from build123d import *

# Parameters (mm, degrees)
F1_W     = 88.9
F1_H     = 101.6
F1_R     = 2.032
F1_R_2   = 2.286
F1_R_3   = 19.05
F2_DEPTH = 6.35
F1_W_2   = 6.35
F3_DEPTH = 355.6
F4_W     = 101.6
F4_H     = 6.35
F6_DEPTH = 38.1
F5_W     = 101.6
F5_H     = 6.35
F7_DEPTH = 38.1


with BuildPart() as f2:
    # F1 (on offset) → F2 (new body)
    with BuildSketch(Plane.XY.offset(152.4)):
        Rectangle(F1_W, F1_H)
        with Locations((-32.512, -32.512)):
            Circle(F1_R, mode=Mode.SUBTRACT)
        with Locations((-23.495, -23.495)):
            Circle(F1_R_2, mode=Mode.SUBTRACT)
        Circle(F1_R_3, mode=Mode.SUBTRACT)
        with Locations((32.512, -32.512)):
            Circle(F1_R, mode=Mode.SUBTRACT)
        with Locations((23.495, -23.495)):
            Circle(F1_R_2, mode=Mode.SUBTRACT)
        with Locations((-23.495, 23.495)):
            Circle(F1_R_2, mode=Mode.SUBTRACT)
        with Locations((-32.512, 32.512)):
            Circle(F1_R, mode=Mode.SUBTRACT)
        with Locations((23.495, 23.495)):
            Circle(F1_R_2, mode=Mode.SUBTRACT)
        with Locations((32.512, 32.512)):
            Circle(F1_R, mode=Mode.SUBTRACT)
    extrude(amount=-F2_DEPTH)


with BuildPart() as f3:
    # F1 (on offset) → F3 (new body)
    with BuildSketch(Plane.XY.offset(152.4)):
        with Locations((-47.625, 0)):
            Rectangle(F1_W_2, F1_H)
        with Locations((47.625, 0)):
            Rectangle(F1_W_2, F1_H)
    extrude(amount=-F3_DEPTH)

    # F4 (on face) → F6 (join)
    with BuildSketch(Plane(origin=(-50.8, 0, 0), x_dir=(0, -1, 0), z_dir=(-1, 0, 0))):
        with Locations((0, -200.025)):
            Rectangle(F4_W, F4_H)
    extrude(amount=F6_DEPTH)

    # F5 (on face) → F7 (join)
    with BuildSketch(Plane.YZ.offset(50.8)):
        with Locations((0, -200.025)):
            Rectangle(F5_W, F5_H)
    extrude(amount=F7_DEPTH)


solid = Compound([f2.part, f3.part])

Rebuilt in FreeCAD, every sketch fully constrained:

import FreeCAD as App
import Part
import Sketcher

V = App.Vector
Q = App.Units.Quantity

doc = App.newDocument("Part")
params = doc.addObject("Spreadsheet::Sheet", "Params")
for row, (alias, value) in enumerate([
    ("sketch1_diameter", "1.5 in"),
    ("sketch1_diameter2", "0.16 in"),
    ("sketch1_diameter3", "0.18 in"),
    ("sketch1_height", "4 in"),
    ("sketch1_width", "3.5 in"),
    ("pad1_length", "0.25 in"),
    ("sketch2_height", "4 in"),
    ("sketch2_width", "0.25 in"),
    ("pad2_length", "14 in"),
    ("sketch3_width", "4 in"),
    ("sketch3_height", "0.25 in"),
    ("pad3_length", "1.5 in"),
    ("sketch4_width", "4 in"),
    ("sketch4_height", "0.25 in"),
    ("pad4_length", "1.5 in"),
], start=1):
    params.set(f"A{row}", alias)
    params.set(f"B{row}", "=" + value)
    params.setAlias(f"B{row}", alias)

body = doc.addObject("PartDesign::Body", "Body")

sketch1 = body.newObject("Sketcher::SketchObject", "Sketch")
sketch1.AttachmentSupport = (doc.getObject("XY_Plane"), [""])
sketch1.MapMode = "FlatFace"
sketch1.AttachmentOffset = App.Placement(V(0, 0, 6 * 25.4), App.Rotation())
sketch1.addGeometry([
    Part.LineSegment(V(-44.5, 50.8, 0), V(-44.5, -50.8, 0)),
    Part.LineSegment(V(-44.5, -50.8, 0), V(44.5, -50.8, 0)),
    Part.LineSegment(V(44.5, -50.8, 0), V(44.5, 50.8, 0)),
    Part.LineSegment(V(44.5, 50.8, 0), V(-44.5, 50.8, 0)),
    Part.Circle(V(-32.5, -32.5, 0), V(0, 0, 1), 2),
    Part.Circle(V(-23.5, -23.5, 0), V(0, 0, 1), 2.3),
    Part.Circle(V(32.5, -32.5, 0), V(0, 0, 1), 2),
    Part.Circle(V(23.5, -23.5, 0), V(0, 0, 1), 2.3),
    Part.Circle(V(-23.5, 23.5, 0), V(0, 0, 1), 2.3),
    Part.Circle(V(-32.5, 32.5, 0), V(0, 0, 1), 2),
    Part.Circle(V(0, 0, 0), V(0, 0, 1), 19.1),
    Part.Circle(V(23.5, 23.5, 0), V(0, 0, 1), 2.3),
    Part.Circle(V(32.5, 32.5, 0), V(0, 0, 1), 2),
], False)
sketch1.addConstraint([
    Sketcher.Constraint("Coincident", 0, 2, 1, 1),
    Sketcher.Constraint("Coincident", 1, 2, 2, 1),
    Sketcher.Constraint("Coincident", 2, 2, 3, 1),
    Sketcher.Constraint("Coincident", 3, 2, 0, 1),
    Sketcher.Constraint("Vertical", 0),
    Sketcher.Constraint("Horizontal", 1),
    Sketcher.Constraint("Vertical", 2),
    Sketcher.Constraint("Horizontal", 3),
    Sketcher.Constraint("Coincident", 10, 3, -1, 1),
    Sketcher.Constraint("Equal", 4, 6),
    Sketcher.Constraint("Equal", 5, 7),
    Sketcher.Constraint("Equal", 7, 8),
    Sketcher.Constraint("Equal", 6, 9),
    Sketcher.Constraint("Equal", 8, 11),
    Sketcher.Constraint("Equal", 9, 12),
    Sketcher.Constraint("Symmetric", 7, 3, 8, 3, -1, 1),
    Sketcher.Constraint("Symmetric", 6, 3, 9, 3, -1, 1),
    Sketcher.Constraint("Symmetric", 5, 3, 11, 3, -1, 1),
    Sketcher.Constraint("Symmetric", 4, 3, 12, 3, -1, 1),
    Sketcher.Constraint("Symmetric", 0, 2, 2, 2, -1, 1),
    Sketcher.Constraint("Symmetric", 4, 3, 6, 3, -2),
    Sketcher.Constraint("Symmetric", 5, 3, 7, 3, -2),
    Sketcher.Constraint("Diameter", 10, Q("1.5 in")),
    Sketcher.Constraint("Diameter", 4, Q("0.16 in")),
    Sketcher.Constraint("Diameter", 5, Q("0.18 in")),
    Sketcher.Constraint("DistanceY", 0, 2, 0, 1, Q("4 in")),
    Sketcher.Constraint("DistanceX", 1, 1, 1, 2, Q("3.5 in")),
    Sketcher.Constraint("DistanceX", 4, 3, -1, 1, Q("1.28 in")),
    Sketcher.Constraint("DistanceY", 4, 3, -1, 1, Q("1.28 in")),
    Sketcher.Constraint("DistanceX", 5, 3, 7, 3, Q("1.85 in")),
    Sketcher.Constraint("DistanceY", 5, 3, 8, 3, Q("1.85 in")),
])
sketch1.setExpression("Constraints[22]", "Params.sketch1_diameter")
sketch1.setExpression("Constraints[23]", "Params.sketch1_diameter2")
sketch1.setExpression("Constraints[24]", "Params.sketch1_diameter3")
sketch1.setExpression("Constraints[25]", "Params.sketch1_height")
sketch1.setExpression("Constraints[26]", "Params.sketch1_width")
pad1 = body.newObject("PartDesign::Pad", "Pad")
pad1.Profile = sketch1
pad1.setExpression("Length", "Params.pad1_length")
pad1.Reversed = True
body2 = doc.addObject("PartDesign::Body", "Body001")
body2.AllowCompound = True

sketch2 = body2.newObject("Sketcher::SketchObject", "Sketch001")
sketch2.AttachmentSupport = (doc.getObject("XY_Plane001"), [""])
sketch2.MapMode = "FlatFace"
sketch2.AttachmentOffset = App.Placement(V(0, 0, 6 * 25.4), App.Rotation())
sketch2.addGeometry([
    Part.LineSegment(V(-51, 51, 0), V(-51, -51, 0)),
    Part.LineSegment(V(-51, -51, 0), V(-44, -51, 0)),
    Part.LineSegment(V(-44, -51, 0), V(-44, 51, 0)),
    Part.LineSegment(V(-44, 51, 0), V(-51, 51, 0)),
    Part.LineSegment(V(44, 51, 0), V(44, -51, 0)),
    Part.LineSegment(V(44, -51, 0), V(51, -51, 0)),
    Part.LineSegment(V(51, -51, 0), V(51, 51, 0)),
    Part.LineSegment(V(51, 51, 0), V(44, 51, 0)),
], False)
sketch2.addConstraint([
    Sketcher.Constraint("Coincident", 0, 2, 1, 1),
    Sketcher.Constraint("Coincident", 1, 2, 2, 1),
    Sketcher.Constraint("Coincident", 2, 2, 3, 1),
    Sketcher.Constraint("Coincident", 3, 2, 0, 1),
    Sketcher.Constraint("Coincident", 4, 2, 5, 1),
    Sketcher.Constraint("Coincident", 5, 2, 6, 1),
    Sketcher.Constraint("Coincident", 6, 2, 7, 1),
    Sketcher.Constraint("Coincident", 7, 2, 4, 1),
    Sketcher.Constraint("Vertical", 0),
    Sketcher.Constraint("Horizontal", 1),
    Sketcher.Constraint("Vertical", 2),
    Sketcher.Constraint("Horizontal", 3),
    Sketcher.Constraint("Vertical", 4),
    Sketcher.Constraint("Horizontal", 5),
    Sketcher.Constraint("Vertical", 6),
    Sketcher.Constraint("Horizontal", 7),
    Sketcher.Constraint("Symmetric", 2, 2, 4, 2, -1, 1),
    Sketcher.Constraint("Symmetric", 0, 2, 6, 2, -1, 1),
    Sketcher.Constraint("Horizontal", 1, 2, 4, 2),
    Sketcher.Constraint("DistanceY", 0, 2, 0, 1, Q("4 in")),
    Sketcher.Constraint("DistanceX", 0, 2, -1, 1, Q("2 in")),
    Sketcher.Constraint("DistanceX", 1, 1, 1, 2, Q("0.25 in")),
])
sketch2.setExpression("Constraints[19]", "Params.sketch2_height")
sketch2.setExpression("Constraints[21]", "Params.sketch2_width")
pad2 = body2.newObject("PartDesign::Pad", "Pad001")
pad2.Profile = sketch2
pad2.setExpression("Length", "Params.pad2_length")
pad2.Reversed = True

sketch3 = body2.newObject("Sketcher::SketchObject", "Sketch002")
sketch3.AttachmentSupport = (doc.getObject("YZ_Plane001"), [""])
sketch3.MapMode = "FlatFace"
sketch3.AttachmentOffset = App.Placement(V(0, 0, -2 * 25.4), App.Rotation())
sketch3.addGeometry([
    Part.LineSegment(V(51, -197, 0), V(51, -203, 0)),
    Part.LineSegment(V(51, -203, 0), V(-51, -203, 0)),
    Part.LineSegment(V(-51, -203, 0), V(-51, -197, 0)),
    Part.LineSegment(V(-51, -197, 0), V(51, -197, 0)),
], False)
sketch3.addConstraint([
    Sketcher.Constraint("Coincident", 0, 2, 1, 1),
    Sketcher.Constraint("Coincident", 1, 2, 2, 1),
    Sketcher.Constraint("Coincident", 2, 2, 3, 1),
    Sketcher.Constraint("Coincident", 3, 2, 0, 1),
    Sketcher.Constraint("Vertical", 0),
    Sketcher.Constraint("Horizontal", 1),
    Sketcher.Constraint("Vertical", 2),
    Sketcher.Constraint("Horizontal", 3),
    Sketcher.Constraint("DistanceX", 1, 2, 1, 1, Q("4 in")),
    Sketcher.Constraint("DistanceX", -1, 1, 0, 2, Q("2 in")),
    Sketcher.Constraint("DistanceY", 0, 2, -1, 1, Q("8 in")),
    Sketcher.Constraint("DistanceY", 0, 2, 0, 1, Q("0.25 in")),
])
sketch3.setExpression("Constraints[8]", "Params.sketch3_width")
sketch3.setExpression("Constraints[11]", "Params.sketch3_height")
pad3 = body2.newObject("PartDesign::Pad", "Pad002")
pad3.Profile = sketch3
pad3.setExpression("Length", "Params.pad3_length")
pad3.Reversed = True

sketch4 = body2.newObject("Sketcher::SketchObject", "Sketch003")
sketch4.AttachmentSupport = (doc.getObject("YZ_Plane001"), [""])
sketch4.MapMode = "FlatFace"
sketch4.AttachmentOffset = App.Placement(V(0, 0, 2 * 25.4), App.Rotation())
sketch4.addGeometry([
    Part.LineSegment(V(-51, -197, 0), V(-51, -203, 0)),
    Part.LineSegment(V(-51, -203, 0), V(51, -203, 0)),
    Part.LineSegment(V(51, -203, 0), V(51, -197, 0)),
    Part.LineSegment(V(51, -197, 0), V(-51, -197, 0)),
], False)
sketch4.addConstraint([
    Sketcher.Constraint("Coincident", 0, 2, 1, 1),
    Sketcher.Constraint("Coincident", 1, 2, 2, 1),
    Sketcher.Constraint("Coincident", 2, 2, 3, 1),
    Sketcher.Constraint("Coincident", 3, 2, 0, 1),
    Sketcher.Constraint("Vertical", 0),
    Sketcher.Constraint("Horizontal", 1),
    Sketcher.Constraint("Vertical", 2),
    Sketcher.Constraint("Horizontal", 3),
    Sketcher.Constraint("DistanceX", 1, 1, 1, 2, Q("4 in")),
    Sketcher.Constraint("DistanceX", 0, 2, -1, 1, Q("2 in")),
    Sketcher.Constraint("DistanceY", 0, 2, -1, 1, Q("8 in")),
    Sketcher.Constraint("DistanceY", 0, 2, 0, 1, Q("0.25 in")),
])
sketch4.setExpression("Constraints[8]", "Params.sketch4_width")
sketch4.setExpression("Constraints[11]", "Params.sketch4_height")
pad4 = body2.newObject("PartDesign::Pad", "Pad003")
pad4.Profile = sketch4
pad4.setExpression("Length", "Params.pad4_length")

doc.recompute()
